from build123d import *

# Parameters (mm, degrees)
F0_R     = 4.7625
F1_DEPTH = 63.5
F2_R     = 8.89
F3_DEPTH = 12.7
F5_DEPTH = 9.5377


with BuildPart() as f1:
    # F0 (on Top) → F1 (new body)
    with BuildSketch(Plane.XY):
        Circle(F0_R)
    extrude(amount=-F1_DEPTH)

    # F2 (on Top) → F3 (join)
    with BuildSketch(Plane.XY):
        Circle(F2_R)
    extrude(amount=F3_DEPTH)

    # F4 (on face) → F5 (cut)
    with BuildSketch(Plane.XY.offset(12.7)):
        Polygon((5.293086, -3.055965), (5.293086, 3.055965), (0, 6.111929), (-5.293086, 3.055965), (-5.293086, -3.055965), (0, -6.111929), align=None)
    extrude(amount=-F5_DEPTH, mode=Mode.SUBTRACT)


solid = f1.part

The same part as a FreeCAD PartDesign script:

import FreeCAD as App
import Part
import Sketcher
from FreeCAD import Vector
Q = App.Units.Quantity


def add_polygon(sketch, points):
    """Adds a closed chain of lines whose ends are joined by coincident constraints."""
    first, n = sketch.GeometryCount, len(points)
    for a, b in zip(points, points[1:] + points[:1]):
        sketch.addGeometry(Part.LineSegment(App.Vector(*a, 0), App.Vector(*b, 0)), False)
    for i in range(n):
        sketch.addConstraint(Sketcher.Constraint("Coincident", first + i, 2, first + (i + 1) % n, 1))

doc = App.newDocument("Part")
body = doc.addObject("PartDesign::Body", "Body")

sketch1 = body.newObject("Sketcher::SketchObject", "Sketch")
sketch1.AttachmentSupport = (doc.getObject("XY_Plane"), [""])
sketch1.MapMode = "FlatFace"
sketch1.addGeometry(Part.Circle(Vector(0, 0, 0), Vector(0, 0, 1), 4.8), False)
sketch1.addConstraint([
    Sketcher.Constraint("Coincident", 0, 3, -1, 1),
    Sketcher.Constraint("Diameter", 0, Q("0.375 in")),
])
pad1 = body.newObject("PartDesign::Pad", "Pad")
pad1.Profile = sketch1
pad1.Length = Q("2.5 in")
pad1.Reversed = True

sketch2 = body.newObject("Sketcher::SketchObject", "Sketch001")
sketch2.AttachmentSupport = (doc.getObject("XY_Plane"), [""])
sketch2.MapMode = "FlatFace"
sketch2.addGeometry(Part.Circle(Vector(0, 0, 0), Vector(0, 0, 1), 9), False)
sketch2.addConstraint([
    Sketcher.Constraint("Coincident", 0, 3, -1, 1),
    Sketcher.Constraint("Diameter", 0, Q("0.7 in")),
])
pad2 = body.newObject("PartDesign::Pad", "Pad001")
pad2.Profile = sketch2
pad2.Length = Q("0.5 in")

sketch3 = body.newObject("Sketcher::SketchObject", "Sketch002")
sketch3.AttachmentSupport = (doc.getObject("XY_Plane"), [""])
sketch3.MapMode = "FlatFace"
sketch3.AttachmentOffset = App.Placement(Vector(0, 0, 0.5 * 25.4), App.Rotation())
add_polygon(sketch3, [(5, -3), (5, 3), (0, 6), (-5, 3), (-5, -3), (0, -6)])
sketch3.addConstraint([
    Sketcher.Constraint("Vertical", 0),
    Sketcher.Constraint("Vertical", 3),
    Sketcher.Constraint("Symmetric", 0, 2, 3, 2, -1, 1),
    Sketcher.Constraint("Symmetric", 1, 2, 4, 2, -1, 1),
    Sketcher.Constraint("PointOnObject", 1, 2, -2),
    Sketcher.Constraint("Parallel", 2, 5),
    Sketcher.Constraint("Horizontal", 0, 2, 2, 2),
    Sketcher.Constraint("Angle", 1, Q("150.000005 deg")),
    Sketcher.Constraint("DistanceY", 0, 1, 0, 2, Q("6.11193 mm")),
    Sketcher.Constraint("Distance", 1, Q("6.111929 mm")),
])
pocket1 = body.newObject("PartDesign::Pocket", "Pocket")
pocket1.Profile = sketch3
pocket1.Length = Q("0.3755 in")

doc.recompute()
